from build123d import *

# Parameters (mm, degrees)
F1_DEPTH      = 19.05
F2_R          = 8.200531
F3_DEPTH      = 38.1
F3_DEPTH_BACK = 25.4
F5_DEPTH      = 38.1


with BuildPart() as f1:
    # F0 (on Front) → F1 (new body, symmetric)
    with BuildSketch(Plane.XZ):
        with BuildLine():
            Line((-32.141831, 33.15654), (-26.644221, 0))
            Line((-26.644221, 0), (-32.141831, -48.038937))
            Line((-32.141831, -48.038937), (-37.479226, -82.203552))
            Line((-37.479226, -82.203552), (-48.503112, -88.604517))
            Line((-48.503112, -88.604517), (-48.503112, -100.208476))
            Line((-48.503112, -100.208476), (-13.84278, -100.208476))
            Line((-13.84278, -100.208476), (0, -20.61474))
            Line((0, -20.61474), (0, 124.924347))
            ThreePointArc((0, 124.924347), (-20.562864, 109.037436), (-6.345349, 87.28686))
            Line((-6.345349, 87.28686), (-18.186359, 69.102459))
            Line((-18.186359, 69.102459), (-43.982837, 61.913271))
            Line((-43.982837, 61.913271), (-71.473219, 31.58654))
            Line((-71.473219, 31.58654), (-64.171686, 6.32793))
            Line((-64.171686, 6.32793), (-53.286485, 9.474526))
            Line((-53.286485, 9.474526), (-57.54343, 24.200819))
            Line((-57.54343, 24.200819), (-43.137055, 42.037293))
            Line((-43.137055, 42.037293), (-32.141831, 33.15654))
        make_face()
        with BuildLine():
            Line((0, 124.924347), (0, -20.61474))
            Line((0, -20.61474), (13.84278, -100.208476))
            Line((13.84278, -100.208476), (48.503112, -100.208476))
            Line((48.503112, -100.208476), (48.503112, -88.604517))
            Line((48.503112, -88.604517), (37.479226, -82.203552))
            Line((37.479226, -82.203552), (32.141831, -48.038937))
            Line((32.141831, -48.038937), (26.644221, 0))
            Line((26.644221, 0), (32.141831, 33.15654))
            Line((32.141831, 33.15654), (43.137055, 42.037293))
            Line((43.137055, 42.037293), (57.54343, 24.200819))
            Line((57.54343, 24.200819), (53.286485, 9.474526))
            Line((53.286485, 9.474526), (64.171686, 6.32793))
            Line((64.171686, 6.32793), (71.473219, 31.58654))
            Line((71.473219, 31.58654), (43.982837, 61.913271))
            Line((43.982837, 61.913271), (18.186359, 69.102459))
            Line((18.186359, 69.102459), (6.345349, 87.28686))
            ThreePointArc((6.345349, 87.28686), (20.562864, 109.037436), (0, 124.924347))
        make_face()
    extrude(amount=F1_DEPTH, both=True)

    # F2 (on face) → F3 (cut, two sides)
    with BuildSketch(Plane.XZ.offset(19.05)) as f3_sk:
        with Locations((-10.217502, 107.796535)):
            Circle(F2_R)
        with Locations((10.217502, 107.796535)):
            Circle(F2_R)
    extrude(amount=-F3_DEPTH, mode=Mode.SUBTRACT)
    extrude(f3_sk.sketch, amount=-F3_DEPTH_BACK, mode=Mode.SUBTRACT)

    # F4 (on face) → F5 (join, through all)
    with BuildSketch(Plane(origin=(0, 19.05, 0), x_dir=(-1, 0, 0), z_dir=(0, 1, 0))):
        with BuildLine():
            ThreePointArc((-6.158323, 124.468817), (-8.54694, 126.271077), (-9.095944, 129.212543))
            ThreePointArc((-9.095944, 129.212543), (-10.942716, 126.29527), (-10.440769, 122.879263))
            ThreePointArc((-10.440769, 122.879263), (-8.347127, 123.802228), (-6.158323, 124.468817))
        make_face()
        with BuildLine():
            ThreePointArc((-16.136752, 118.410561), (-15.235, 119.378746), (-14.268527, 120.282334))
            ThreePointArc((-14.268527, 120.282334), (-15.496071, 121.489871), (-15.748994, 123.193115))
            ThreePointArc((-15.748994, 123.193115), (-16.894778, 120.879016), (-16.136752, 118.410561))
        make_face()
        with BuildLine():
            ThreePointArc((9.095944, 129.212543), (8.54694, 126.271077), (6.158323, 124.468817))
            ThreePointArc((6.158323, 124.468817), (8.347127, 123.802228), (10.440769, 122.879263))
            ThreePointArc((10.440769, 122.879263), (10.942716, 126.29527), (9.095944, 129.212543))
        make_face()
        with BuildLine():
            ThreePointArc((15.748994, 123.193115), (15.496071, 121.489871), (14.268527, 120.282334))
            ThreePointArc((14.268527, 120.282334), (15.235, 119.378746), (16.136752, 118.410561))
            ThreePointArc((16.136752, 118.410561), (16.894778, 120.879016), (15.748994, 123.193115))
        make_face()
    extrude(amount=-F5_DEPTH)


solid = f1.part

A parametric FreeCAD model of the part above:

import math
import FreeCAD as App
import Part
import Sketcher

V = App.Vector
Q = App.Units.Quantity

doc = App.newDocument("Part")
body = doc.addObject("PartDesign::Body", "Body")

sketch1 = body.newObject("Sketcher::SketchObject", "Sketch")
sketch1.AttachmentSupport = (doc.getObject("XZ_Plane"), [""])
sketch1.MapMode = "FlatFace"
sketch1.addGeometry([
    Part.LineSegment(V(-32, 33, 0), V(-27, 0, 0)),
    Part.LineSegment(V(-27, 0, 0), V(-32, -48, 0)),
    Part.LineSegment(V(-32, -48, 0), V(-37, -82, 0)),
    Part.LineSegment(V(-37, -82, 0), V(-49, -89, 0)),
    Part.LineSegment(V(-49, -89, 0), V(-49, -100, 0)),
    Part.LineSegment(V(-49, -100, 0), V(-14, -100, 0)),
    Part.LineSegment(V(-14, -100, 0), V(0, -21, 0)),
    Part.LineSegment(V(0, -21, 0), V(14, -100, 0)),
    Part.LineSegment(V(14, -100, 0), V(49, -100, 0)),
    Part.LineSegment(V(49, -100, 0), V(49, -89, 0)),
    Part.LineSegment(V(49, -89, 0), V(37, -82, 0)),
    Part.LineSegment(V(37, -82, 0), V(32, -48, 0)),
    Part.LineSegment(V(32, -48, 0), V(27, 0, 0)),
    Part.LineSegment(V(27, 0, 0), V(32, 33, 0)),
    Part.LineSegment(V(32, 33, 0), V(43, 42, 0)),
    Part.LineSegment(V(43, 42, 0), V(58, 24, 0)),
    Part.LineSegment(V(58, 24, 0), V(53, 9, 0)),
    Part.LineSegment(V(53, 9, 0), V(64, 6, 0)),
    Part.LineSegment(V(64, 6, 0), V(71, 32, 0)),
    Part.LineSegment(V(71, 32, 0), V(44, 62, 0)),
    Part.LineSegment(V(44, 62, 0), V(18, 69, 0)),
    Part.LineSegment(V(18, 69, 0), V(6, 87, 0)),
    Part.ArcOfCircle(Part.Circle(V(2, 106, 0), V(0, 0, 1), 19), math.radians(-76), math.radians(95)),
    Part.ArcOfCircle(Part.Circle(V(-2, 106, 0), V(0, 0, 1), 19), math.radians(85), math.radians(256)),
    Part.LineSegment(V(-6, 87, 0), V(-18, 69, 0)),
    Part.LineSegment(V(-18, 69, 0), V(-44, 62, 0)),
    Part.LineSegment(V(-44, 62, 0), V(-71, 32, 0)),
    Part.LineSegment(V(-71, 32, 0), V(-64, 6, 0)),
    Part.LineSegment(V(-64, 6, 0), V(-53, 9, 0)),
    Part.LineSegment(V(-53, 9, 0), V(-58, 24, 0)),
    Part.LineSegment(V(-58, 24, 0), V(-43, 42, 0)),
    Part.LineSegment(V(-43, 42, 0), V(-32, 33, 0)),
], False)
sketch1.addConstraint([
    Sketcher.Constraint("Coincident", 0, 2, 1, 1),
    Sketcher.Constraint("Coincident", 1, 2, 2, 1),
    Sketcher.Constraint("Coincident", 2, 2, 3, 1),
    Sketcher.Constraint("Coincident", 3, 2, 4, 1),
    Sketcher.Constraint("Coincident", 4, 2, 5, 1),
    Sketcher.Constraint("Coincident", 5, 2, 6, 1),
    Sketcher.Constraint("Coincident", 6, 2, 7, 1),
    Sketcher.Constraint("Coincident", 7, 2, 8, 1),
    Sketcher.Constraint("Coincident", 8, 2, 9, 1),
    Sketcher.Constraint("Coincident", 9, 2, 10, 1),
    Sketcher.Constraint("Coincident", 10, 2, 11, 1),
    Sketcher.Constraint("Coincident", 11, 2, 12, 1),
    Sketcher.Constraint("Coincident", 12, 2, 13, 1),
    Sketcher.Constraint("Coincident", 13, 2, 14, 1),
    Sketcher.Constraint("Coincident", 14, 2, 15, 1),
    Sketcher.Constraint("Coincident", 15, 2, 16, 1),
    Sketcher.Constraint("Coincident", 16, 2, 17, 1),
    Sketcher.Constraint("Coincident", 17, 2, 18, 1),
    Sketcher.Constraint("Coincident", 18, 2, 19, 1),
    Sketcher.Constraint("Coincident", 19, 2, 20, 1),
    Sketcher.Constraint("Coincident", 20, 2, 21, 1),
    Sketcher.Constraint("Coincident", 21, 2, 22, 1),
    Sketcher.Constraint("Coincident", 22, 2, 23, 1),
    Sketcher.Constraint("Coincident", 23, 2, 24, 1),
    Sketcher.Constraint("Coincident", 24, 2, 25, 1),
    Sketcher.Constraint("Coincident", 25, 2, 26, 1),
    Sketcher.Constraint("Coincident", 26, 2, 27, 1),
    Sketcher.Constraint("Coincident", 27, 2, 28, 1),
    Sketcher.Constraint("Coincident", 28, 2, 29, 1),
    Sketcher.Constraint("Coincident", 29, 2, 30, 1),
    Sketcher.Constraint("Coincident", 30, 2, 31, 1),
    Sketcher.Constraint("Coincident", 31, 2, 0, 1),
    Sketcher.Constraint("Vertical", 4),
    Sketcher.Constraint("Horizontal", 5),
    Sketcher.Constraint("Horizontal", 8),
    Sketcher.Constraint("Vertical", 9),
    Sketcher.Constraint("Equal", 22, 23),
    Sketcher.Constraint("Symmetric", 0, 2, 12, 2, -1, 1),
    Sketcher.Constraint("Symmetric", 22, 3, 23, 3, -2),
    Sketcher.Constraint("Symmetric", 5, 2, 7, 2, -2),
    Sketcher.Constraint("Symmetric", 3, 2, 9, 2, -2),
    Sketcher.Constraint("Symmetric", 2, 2, 10, 2, -2),
    Sketcher.Constraint("Symmetric", 1, 2, 11, 2, -2),
    Sketcher.Constraint("Symmetric", 20, 2, 24, 2, -2),
    Sketcher.Constraint("Symmetric", 19, 2, 25, 2, -2),
    Sketcher.Constraint("Symmetric", 18, 2, 26, 2, -2),
    Sketcher.Constraint("Symmetric", 17, 2, 27, 2, -2),
    Sketcher.Constraint("Symmetric", 16, 2, 28, 2, -2),
    Sketcher.Constraint("Symmetric", 15, 2, 29, 2, -2),
    Sketcher.Constraint("Symmetric", 14, 2, 30, 2, -2),
    Sketcher.Constraint("Symmetric", 13, 2, 31, 2, -2),
    Sketcher.Constraint("PointOnObject", 0, 2, -1),
    Sketcher.Constraint("PointOnObject", 6, 2, -2),
    Sketcher.Constraint("Perpendicular", 14, 15),
    Sketcher.Constraint("Perpendicular", 16, 17),
    Sketcher.Constraint("Perpendicular", 17, 18),
    Sketcher.Constraint("Horizontal", 21, 2, 23, 2),
    Sketcher.Constraint("Vertical", 11, 2, 13, 2),
    Sketcher.Constraint("Radius", 22, 19.143816),
    Sketcher.Constraint("DistanceY", 4, 2, 4, 1, 11.603959),
    Sketcher.Constraint("DistanceX", 23, 3, 14, 2, 44.8225),
    Sketcher.Constraint("DistanceX", 13, 2, 15, 2, 25.401599),
    Sketcher.Constraint("DistanceX", 16, 2, 17, 2, 10.885201),
    Sketcher.Constraint("DistanceY", 18, 2, 13, 2, 1.57),
    Sketcher.Constraint("DistanceY", 20, 2, 21, 2, 18.184401),
    Sketcher.Constraint("DistanceX", 23, 2, 21, 2, 12.690698),
    Sketcher.Constraint("DistanceY", 25, 2, 23, 3, 43.941599),
    Sketcher.Constraint("Distance", 1, 48.352489),
    Sketcher.Constraint("Distance", 2, 34.579021),
    Sketcher.Constraint("Distance", 16, 15.32923),
    Sketcher.Constraint("Distance", 18, 26.29277),
    Sketcher.Constraint("Distance", 20, 26.77952),
    Sketcher.Constraint("DistanceX", 5, 1, 5, 2, 34.660332),
    Sketcher.Constraint("DistanceY", -1, 1, 22, 3, 105.85487),
    Sketcher.Constraint("DistanceX", 0, 2, -1, 1, 26.644221),
    Sketcher.Constraint("DistanceX", 1, 2, -1, 1, 32.141831),
    Sketcher.Constraint("DistanceY", 2, 2, -1, 1, 82.203552),
    Sketcher.Constraint("DistanceX", 5, 2, -1, 1, 13.84278),
    Sketcher.Constraint("DistanceY", 6, 2, -1, 1, 20.61474),
    Sketcher.Constraint("DistanceY", -1, 1, 13, 2, 33.15654),
    Sketcher.Constraint("DistanceY", -1, 1, 15, 2, 24.200819),
    Sketcher.Constraint("DistanceX", -1, 1, 20, 2, 18.186359),
    Sketcher.Constraint("DistanceY", -1, 1, 20, 2, 69.102459),
    Sketcher.Constraint("DistanceY", 3, 2, 1, 2, 40.56558),
])
pad1 = body.newObject("PartDesign::Pad", "Pad")
pad1.Profile = sketch1
pad1.Length = Q("1.5 in")
pad1.Midplane = True

sketch2 = body.newObject("Sketcher::SketchObject", "Sketch001")
sketch2.AttachmentSupport = (doc.getObject("XZ_Plane"), [""])
sketch2.MapMode = "FlatFace"
sketch2.AttachmentOffset = App.Placement(V(0, 0, 0.75 * 25.4), App.Rotation())
sketch2.addGeometry([
    Part.Circle(V(-10, 108, 0), V(0, 0, 1), 8),
    Part.Circle(V(10, 108, 0), V(0, 0, 1), 8),
], False)
sketch2.addConstraint([
    Sketcher.Constraint("Equal", 0, 1),
    Sketcher.Constraint("Symmetric", 0, 3, 1, 3, -2),
    Sketcher.Constraint("Diameter", 0, 16.401062),
    Sketcher.Constraint("DistanceX", 0, 3, -1, 1, 10.217502),
    Sketcher.Constraint("DistanceY", -1, 1, 0, 3, 107.796535),
])
pocket1 = body.newObject("PartDesign::Pocket", "Pocket")
pocket1.Profile = sketch2
pocket1.Length = Q("1.5 in")
pocket2 = body.newObject("PartDesign::Pocket", "Pocket001")
pocket2.Profile = sketch2
pocket2.Length = Q("1 in")

sketch3 = body.newObject("Sketcher::SketchObject", "Sketch002")
sketch3.AttachmentSupport = (doc.getObject("XZ_Plane"), [""])
sketch3.MapMode = "FlatFace"
sketch3.AttachmentOffset = App.Placement(V(0, 0, -0.75 * 25.4), App.Rotation())
sketch3.addGeometry([
    Part.ArcOfCircle(Part.Circle(V(5, 128.4, 0), V(0, 0, 1), 4.1), math.radians(-74), math.radians(11)),
    Part.ArcOfCircle(Part.Circle(V(6.1, 125.3, 0), V(0, 0, 1), 5), math.radians(-29), math.radians(53)),
    Part.ArcOfCircle(Part.Circle(V(1.7, 105.9, 0), V(0, 0, 1), 19.1), math.radians(62.78), math.radians(76.49)),
    Part.ArcOfCircle(Part.Circle(V(1.7, 105.9, 0), V(0, 0, 1), 19.1), math.radians(40.98), math.radians(48.91)),
    Part.ArcOfCircle(Part.Circle(V(13.1, 122.7, 0), V(0, 0, 1), 2.7), math.radians(-64), math.radians(10)),
    Part.ArcOfCircle(Part.Circle(V(13.4, 120.6, 0), V(0, 0, 1), 3.5), math.radians(-39), math.radians(48)),
    Part.ArcOfCircle(Part.Circle(V(-5, 128.4, 0), V(0, 0, 1), 4.1), math.radians(169), math.radians(254)),
    Part.ArcOfCircle(Part.Circle(V(-1.7, 105.9, 0), V(0, 0, 1), 19.1), math.radians(103.51), math.radians(117.22)),
    Part.ArcOfCircle(Part.Circle(V(-6.1, 125.3, 0), V(0, 0, 1), 5), math.radians(127), math.radians(209)),
    Part.ArcOfCircle(Part.Circle(V(-13.1, 122.7, 0), V(0, 0, 1), 2.7), math.radians(170), math.radians(244)),
    Part.ArcOfCircle(Part.Circle(V(-1.7, 105.9, 0), V(0, 0, 1), 19.1), math.radians(131.09), math.radians(139.02)),
    Part.ArcOfCircle(Part.Circle(V(-13.4, 120.6, 0), V(0, 0, 1), 3.5), math.radians(132), math.radians(219)),
], False)
sketch3.addConstraint([
    Sketcher.Constraint("Coincident", 0, 2, 1, 2),
    Sketcher.Constraint("Coincident", 1, 1, 2, 1),
    Sketcher.Constraint("Coincident", 2, 2, 0, 1),
    Sketcher.Constraint("Coincident", 3, 2, 4, 1),
    Sketcher.Constraint("Coincident", 4, 2, 5, 2),
    Sketcher.Constraint("Coincident", 5, 1, 3, 1),
    Sketcher.Constraint("Coincident", 6, 2, 7, 1),
    Sketcher.Constraint("Coincident", 7, 2, 8, 2),
    Sketcher.Constraint("Coincident", 8, 1, 6, 1),
    Sketcher.Constraint("Coincident", 9, 2, 10, 1),
    Sketcher.Constraint("Coincident", 10, 2, 11, 2),
    Sketcher.Constraint("Coincident", 11, 1, 9, 1),
    Sketcher.Constraint("Coincident", 3, 3, 2, 3),
    Sketcher.Constraint("Coincident", 10, 3, 7, 3),
    Sketcher.Constraint("Equal", 0, 6),
    Sketcher.Constraint("Equal", 2, 7),
    Sketcher.Constraint("Equal", 1, 8),
    Sketcher.Constraint("Equal", 4, 9),
    Sketcher.Constraint("Equal", 3, 10),
    Sketcher.Constraint("Equal", 5, 11),
    Sketcher.Constraint("Symmetric", 0, 3, 6, 3, -2),
    Sketcher.Constraint("Symmetric", 2, 3, 7, 3, -2),
    Sketcher.Constraint("Symmetric", 1, 3, 8, 3, -2),
    Sketcher.Constraint("Symmetric", 4, 3, 9, 3, -2),
    Sketcher.Constraint("Symmetric", 5, 3, 11, 3, -2),
    Sketcher.Constraint("Radius", 3, 19.143788),
    Sketcher.Constraint("Radius", 5, 3.490929),
    Sketcher.Constraint("Radius", 0, 4.137948),
    Sketcher.Constraint("Radius", 1, 4.964857),
    Sketcher.Constraint("Radius", 2, 19.143785),
    Sketcher.Constraint("Radius", 4, 2.711634),
    Sketcher.Constraint("DistanceY", -1, 1, 2, 3, 105.854899),
    Sketcher.Constraint("DistanceY", 5, 1, 1, 1, 4.468702),
    Sketcher.Constraint("DistanceX", -1, 1, 0, 3, 5.028929),
    Sketcher.Constraint("DistanceX", -1, 1, 1, 3, 6.086142),
    Sketcher.Constraint("DistanceX", -1, 1, 3, 3, 1.685461),
    Sketcher.Constraint("DistanceY", -1, 1, 4, 3, 122.71918),
    Sketcher.Constraint("DistanceX", -1, 1, 1, 1, 10.440769),
    Sketcher.Constraint("DistanceX", 0, 3, 4, 3, 8.050169),
    Sketcher.Constraint("DistanceX", 4, 3, 5, 3, 0.336169),
    Sketcher.Constraint("DistanceY", 5, 3, 0, 3, 7.85275),
])
pad2 = body.newObject("PartDesign::Pad", "Pad001")
pad2.Profile = sketch3
pad2.Type = "UpToLast"

doc.recompute()
